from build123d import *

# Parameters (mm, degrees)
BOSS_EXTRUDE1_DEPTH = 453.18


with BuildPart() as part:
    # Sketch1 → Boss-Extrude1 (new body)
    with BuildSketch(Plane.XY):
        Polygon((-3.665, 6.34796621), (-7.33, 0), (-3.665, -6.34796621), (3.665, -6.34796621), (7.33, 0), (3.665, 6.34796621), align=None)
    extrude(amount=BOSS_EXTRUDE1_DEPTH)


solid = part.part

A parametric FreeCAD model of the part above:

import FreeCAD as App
import Part
import Sketcher

V = App.Vector
Q = App.Units.Quantity

doc = App.newDocument("Part")
body = doc.addObject("PartDesign::Body", "Body")

sketch1 = doc.addObject("Sketcher::SketchObject", "Sketch")
body.addObject(sketch1)
sketch1.AttachmentSupport = (doc.XY_Plane, [""])
sketch1.MapMode = "FlatFace"
sketch1.addGeometry([
    Part.LineSegment(V(-4, 6, 0), V(-7, 0, 0)),
    Part.LineSegment(V(-7, 0, 0), V(-4, -6, 0)),
    Part.LineSegment(V(-4, -6, 0), V(4, -6, 0)),
    Part.LineSegment(V(4, -6, 0), V(7, 0, 0)),
    Part.LineSegment(V(7, 0, 0), V(4, 6, 0)),
    Part.LineSegment(V(4, 6, 0), V(-4, 6, 0)),
], False)
sketch1.addConstraint([
    Sketcher.Constraint("Coincident", 0, 2, 1, 1),
    Sketcher.Constraint("Coincident", 1, 2, 2, 1),
    Sketcher.Constraint("Coincident", 2, 2, 3, 1),
    Sketcher.Constraint("Coincident", 3, 2, 4, 1),
    Sketcher.Constraint("Coincident", 4, 2, 5, 1),
    Sketcher.Constraint("Coincident", 5, 2, 0, 1),
    Sketcher.Constraint("Horizontal", 2),
    Sketcher.Constraint("Horizontal", 5),
    Sketcher.Constraint("Symmetric", 0, 2, 3, 2, -1, 1),
    Sketcher.Constraint("Symmetric", 1, 2, 4, 2, -1, 1),
    Sketcher.Constraint("PointOnObject", 0, 2, -1),
    Sketcher.Constraint("Parallel", 0, 3),
    Sketcher.Constraint("Vertical", 2, 2, 4, 2),
    Sketcher.Constraint("Angle", 0, Q("-120 deg")),
    Sketcher.Constraint("DistanceX", 2, 1, 2, 2, 7.33),
    Sketcher.Constraint("Distance", 0, 7.33),
])
pad1 = doc.addObject("PartDesign::Pad", "Pad")
body.addObject(pad1)
pad1.Profile = sketch1
pad1.Length = 453.18

doc.recompute()
